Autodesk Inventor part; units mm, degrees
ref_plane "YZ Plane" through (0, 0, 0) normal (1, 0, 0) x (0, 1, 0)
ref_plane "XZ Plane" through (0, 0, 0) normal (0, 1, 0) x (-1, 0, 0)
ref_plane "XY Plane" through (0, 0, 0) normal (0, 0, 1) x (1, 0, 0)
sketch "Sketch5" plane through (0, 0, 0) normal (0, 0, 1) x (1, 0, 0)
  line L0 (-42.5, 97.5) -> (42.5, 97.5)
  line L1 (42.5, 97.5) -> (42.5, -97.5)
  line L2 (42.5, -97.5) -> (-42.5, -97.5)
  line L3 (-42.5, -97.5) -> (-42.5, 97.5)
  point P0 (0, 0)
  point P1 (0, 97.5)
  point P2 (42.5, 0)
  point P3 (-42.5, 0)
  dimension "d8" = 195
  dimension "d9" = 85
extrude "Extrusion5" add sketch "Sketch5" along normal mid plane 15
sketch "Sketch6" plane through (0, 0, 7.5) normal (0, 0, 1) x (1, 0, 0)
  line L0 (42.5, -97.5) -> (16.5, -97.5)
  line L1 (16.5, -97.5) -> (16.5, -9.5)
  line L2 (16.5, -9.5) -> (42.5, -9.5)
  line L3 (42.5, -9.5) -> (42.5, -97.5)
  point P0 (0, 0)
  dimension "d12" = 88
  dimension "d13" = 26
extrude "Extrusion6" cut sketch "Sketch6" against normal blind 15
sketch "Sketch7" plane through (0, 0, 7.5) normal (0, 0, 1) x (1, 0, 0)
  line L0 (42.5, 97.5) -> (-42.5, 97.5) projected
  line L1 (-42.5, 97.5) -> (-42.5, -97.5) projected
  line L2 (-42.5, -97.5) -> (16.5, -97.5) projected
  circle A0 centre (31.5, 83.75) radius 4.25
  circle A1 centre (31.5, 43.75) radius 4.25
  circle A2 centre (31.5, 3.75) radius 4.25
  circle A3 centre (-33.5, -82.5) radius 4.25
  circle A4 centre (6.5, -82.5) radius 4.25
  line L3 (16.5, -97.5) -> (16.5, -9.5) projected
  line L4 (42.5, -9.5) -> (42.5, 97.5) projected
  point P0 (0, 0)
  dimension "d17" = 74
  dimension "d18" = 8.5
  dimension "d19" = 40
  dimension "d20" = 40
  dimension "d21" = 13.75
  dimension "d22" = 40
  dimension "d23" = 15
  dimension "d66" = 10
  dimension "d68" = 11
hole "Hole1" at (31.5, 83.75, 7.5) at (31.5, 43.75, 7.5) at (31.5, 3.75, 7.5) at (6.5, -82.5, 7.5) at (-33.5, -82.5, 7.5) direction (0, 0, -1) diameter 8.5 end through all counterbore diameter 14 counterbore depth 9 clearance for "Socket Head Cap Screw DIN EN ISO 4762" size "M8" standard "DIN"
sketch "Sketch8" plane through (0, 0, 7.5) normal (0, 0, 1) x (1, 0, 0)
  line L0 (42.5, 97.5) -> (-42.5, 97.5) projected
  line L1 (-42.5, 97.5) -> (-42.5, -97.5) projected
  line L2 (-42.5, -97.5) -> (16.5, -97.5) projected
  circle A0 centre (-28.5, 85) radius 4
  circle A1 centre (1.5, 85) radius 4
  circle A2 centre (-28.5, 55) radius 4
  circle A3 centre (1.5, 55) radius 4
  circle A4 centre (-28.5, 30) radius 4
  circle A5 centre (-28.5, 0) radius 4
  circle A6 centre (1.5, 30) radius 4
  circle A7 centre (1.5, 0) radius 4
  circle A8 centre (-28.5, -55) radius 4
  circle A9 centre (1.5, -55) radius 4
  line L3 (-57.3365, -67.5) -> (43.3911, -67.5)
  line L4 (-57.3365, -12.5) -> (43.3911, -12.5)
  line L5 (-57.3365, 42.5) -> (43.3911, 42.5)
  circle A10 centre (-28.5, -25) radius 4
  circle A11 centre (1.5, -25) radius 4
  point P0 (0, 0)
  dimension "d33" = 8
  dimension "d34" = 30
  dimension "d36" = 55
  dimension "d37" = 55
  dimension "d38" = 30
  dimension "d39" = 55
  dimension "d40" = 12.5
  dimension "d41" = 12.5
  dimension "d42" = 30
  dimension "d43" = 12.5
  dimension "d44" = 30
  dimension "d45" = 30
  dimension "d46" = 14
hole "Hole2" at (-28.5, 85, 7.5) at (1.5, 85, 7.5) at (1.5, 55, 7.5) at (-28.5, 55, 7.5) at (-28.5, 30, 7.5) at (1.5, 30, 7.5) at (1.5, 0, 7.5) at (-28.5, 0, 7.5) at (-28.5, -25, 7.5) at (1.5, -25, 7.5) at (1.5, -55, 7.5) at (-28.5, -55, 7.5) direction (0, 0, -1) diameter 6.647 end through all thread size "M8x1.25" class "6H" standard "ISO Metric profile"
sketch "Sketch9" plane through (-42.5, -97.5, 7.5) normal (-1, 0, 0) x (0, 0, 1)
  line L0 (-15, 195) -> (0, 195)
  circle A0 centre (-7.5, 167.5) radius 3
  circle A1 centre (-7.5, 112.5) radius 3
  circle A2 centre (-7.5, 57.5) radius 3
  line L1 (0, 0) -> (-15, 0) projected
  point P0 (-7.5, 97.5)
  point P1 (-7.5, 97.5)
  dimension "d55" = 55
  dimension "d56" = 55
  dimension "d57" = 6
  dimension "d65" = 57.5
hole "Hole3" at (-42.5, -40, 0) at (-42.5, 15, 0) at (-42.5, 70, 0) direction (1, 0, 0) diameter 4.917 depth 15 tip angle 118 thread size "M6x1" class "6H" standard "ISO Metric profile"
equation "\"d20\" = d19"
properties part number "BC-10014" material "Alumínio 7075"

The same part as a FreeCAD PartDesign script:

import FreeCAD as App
import Part
import Sketcher
Q = App.Units.Quantity

doc = App.newDocument("Part")
body = doc.addObject("PartDesign::Body", "Body")

# Sketch on XY plane
sketch1 = body.newObject("Sketcher::SketchObject", "Sketch")
sketch1.AttachmentSupport = (doc.getObject("XY_Plane"), [""])
sketch1.MapMode = "FlatFace"
sketch1.addGeometry([
    Part.LineSegment(App.Vector(42, 98, 0), App.Vector(-42, 98, 0)),
    Part.LineSegment(App.Vector(-42, 98, 0), App.Vector(-42, -98, 0)),
    Part.LineSegment(App.Vector(-42, -98, 0), App.Vector(42, -98, 0)),
    Part.LineSegment(App.Vector(42, -98, 0), App.Vector(42, 98, 0)),
], False)
sketch1.addConstraint([
    Sketcher.Constraint("Coincident", 0, 2, 1, 1),
    Sketcher.Constraint("Coincident", 1, 2, 2, 1),
    Sketcher.Constraint("Coincident", 2, 2, 3, 1),
    Sketcher.Constraint("Coincident", 3, 2, 0, 1),
    Sketcher.Constraint("Horizontal", 0),
    Sketcher.Constraint("Vertical", 1),
    Sketcher.Constraint("Horizontal", 2),
    Sketcher.Constraint("Vertical", 3),
    Sketcher.Constraint("Symmetric", 0, 2, 2, 2, -1, 1),
    Sketcher.Constraint("DistanceX", 0, 2, 0, 1, Q("85 mm")),
    Sketcher.Constraint("DistanceY", 1, 2, 1, 1, Q("195 mm")),
])
pad1 = body.newObject("PartDesign::Pad", "Pad")
pad1.Profile = sketch1
pad1.Length = 15
pad1.Midplane = True

# Sketch on XY plane
sketch2 = body.newObject("Sketcher::SketchObject", "Sketch001")
sketch2.AttachmentSupport = (doc.getObject("XY_Plane"), [""])
sketch2.MapMode = "FlatFace"
sketch2.AttachmentOffset = App.Placement(App.Vector(0, 0, 7.5), App.Rotation())
sketch2.addGeometry([
    Part.LineSegment(App.Vector(16, -98, 0), App.Vector(42, -98, 0)),
    Part.LineSegment(App.Vector(42, -98, 0), App.Vector(42, -10, 0)),
    Part.LineSegment(App.Vector(42, -10, 0), App.Vector(16, -10, 0)),
    Part.LineSegment(App.Vector(16, -10, 0), App.Vector(16, -98, 0)),
], False)
sketch2.addConstraint([
    Sketcher.Constraint("Coincident", 0, 2, 1, 1),
    Sketcher.Constraint("Coincident", 1, 2, 2, 1),
    Sketcher.Constraint("Coincident", 2, 2, 3, 1),
    Sketcher.Constraint("Coincident", 3, 2, 0, 1),
    Sketcher.Constraint("Horizontal", 0),
    Sketcher.Constraint("Vertical", 1),
    Sketcher.Constraint("Horizontal", 2),
    Sketcher.Constraint("Vertical", 3),
    Sketcher.Constraint("DistanceX", 0, 1, 0, 2, Q("26 mm")),
    Sketcher.Constraint("DistanceY", 1, 1, 1, 2, Q("88 mm")),
    Sketcher.Constraint("DistanceX", -1, 1, 0, 2, Q("42.5 mm")),
    Sketcher.Constraint("DistanceY", 0, 2, -1, 1, Q("97.5 mm")),
])
pocket1 = body.newObject("PartDesign::Pocket", "Pocket")
pocket1.Profile = sketch2
pocket1.Length = 15

# Sketch on XY plane
sketch3 = body.newObject("Sketcher::SketchObject", "Sketch002")
sketch3.AttachmentSupport = (doc.getObject("XY_Plane"), [""])
sketch3.MapMode = "FlatFace"
sketch3.AttachmentOffset = App.Placement(App.Vector(0, 0, 7.5), App.Rotation())
sketch3.addGeometry([
    Part.Circle(App.Vector(31.5, 83.8, 0), App.Vector(0, 0, 1), 4.2),  # 0
    Part.Circle(App.Vector(31.5, 43.8, 0), App.Vector(0, 0, 1), 4.2),  # 1
    Part.Circle(App.Vector(31.5, 3.8, 0), App.Vector(0, 0, 1), 4.2),  # 2
    Part.Circle(App.Vector(6.5, -82.5, 0), App.Vector(0, 0, 1), 4.2),  # 3
    Part.Circle(App.Vector(-33.5, -82.5, 0), App.Vector(0, 0, 1), 4.2),  # 4
], False)
sketch3.addConstraint([
    Sketcher.Constraint("Equal", 0, 1),
    Sketcher.Constraint("Equal", 1, 2),
    Sketcher.Constraint("Equal", 2, 3),
    Sketcher.Constraint("Equal", 3, 4),
    Sketcher.Constraint("Horizontal", 3, 3, 4, 3),
    Sketcher.Constraint("Vertical", 0, 3, 1, 3),
    Sketcher.Constraint("Vertical", 1, 3, 2, 3),
    Sketcher.Constraint("Diameter", 0, Q("8.5 mm")),
    Sketcher.Constraint("DistanceY", 1, 3, 0, 3, Q("40 mm")),
    Sketcher.Constraint("DistanceY", 2, 3, 1, 3, Q("40 mm")),
    Sketcher.Constraint("DistanceX", 3, 3, 2, 3, Q("25 mm")),
    Sketcher.Constraint("DistanceX", 4, 3, 3, 3, Q("40 mm")),
    Sketcher.Constraint("DistanceX", -1, 1, 0, 3, Q("31.5 mm")),
    Sketcher.Constraint("DistanceY", 3, 3, -1, 1, Q("82.5 mm")),
    Sketcher.Constraint("DistanceY", -1, 1, 0, 3, Q("83.75 mm")),
])
doc.recompute()
hole = body.newObject("PartDesign::Hole", "Hole")
hole.Profile = sketch3
hole.ThreadType = "None"
hole.Diameter = 8.5
hole.DepthType = "ThroughAll"
hole.HoleCutType = "Counterbore"
hole.HoleCutDiameter = 14
hole.HoleCutDepth = 9

# Sketch on XY plane
sketch4 = body.newObject("Sketcher::SketchObject", "Sketch003")
sketch4.AttachmentSupport = (doc.getObject("XY_Plane"), [""])
sketch4.MapMode = "FlatFace"
sketch4.AttachmentOffset = App.Placement(App.Vector(0, 0, 7.5), App.Rotation())
sketch4.addGeometry([
    Part.Circle(App.Vector(-28.5, 85, 0), App.Vector(0, 0, 1), 3.3),  # 0
    Part.Circle(App.Vector(1.5, 85, 0), App.Vector(0, 0, 1), 3.3),  # 1
    Part.Circle(App.Vector(1.5, 55, 0), App.Vector(0, 0, 1), 3.3),  # 2
    Part.Circle(App.Vector(-28.5, 55, 0), App.Vector(0, 0, 1), 3.3),  # 3
    Part.Circle(App.Vector(-28.5, 30, 0), App.Vector(0, 0, 1), 3.3),  # 4
    Part.Circle(App.Vector(1.5, 30, 0), App.Vector(0, 0, 1), 3.3),  # 5
    Part.Circle(App.Vector(1.5, 0, 0), App.Vector(0, 0, 1), 3.3),  # 6
    Part.Circle(App.Vector(-28.5, 0, 0), App.Vector(0, 0, 1), 3.3),  # 7
    Part.Circle(App.Vector(-28.5, -25, 0), App.Vector(0, 0, 1), 3.3),  # 8
    Part.Circle(App.Vector(1.5, -25, 0), App.Vector(0, 0, 1), 3.3),  # 9
    Part.Circle(App.Vector(1.5, -55, 0), App.Vector(0, 0, 1), 3.3),  # 10
    Part.Circle(App.Vector(-28.5, -55, 0), App.Vector(0, 0, 1), 3.3),  # 11
], False)
sketch4.addConstraint([
    Sketcher.Constraint("Equal", 0, 1),
    Sketcher.Constraint("Equal", 1, 2),
    Sketcher.Constraint("Equal", 2, 3),
    Sketcher.Constraint("Equal", 3, 4),
    Sketcher.Constraint("Equal", 4, 5),
    Sketcher.Constraint("Equal", 5, 6),
    Sketcher.Constraint("Equal", 6, 7),
    Sketcher.Constraint("Equal", 7, 8),
    Sketcher.Constraint("Equal", 8, 9),
    Sketcher.Constraint("Equal", 9, 10),
    Sketcher.Constraint("Equal", 10, 11),
    Sketcher.Constraint("Symmetric", 2, 3, 10, 3, -1),
    Sketcher.Constraint("Symmetric", 3, 3, 11, 3, -1),
    Sketcher.Constraint("PointOnObject", 6, 3, -1),
    Sketcher.Constraint("PointOnObject", 7, 3, -1),
    Sketcher.Constraint("Horizontal", 0, 3, 1, 3),
    Sketcher.Constraint("Horizontal", 2, 3, 3, 3),
    Sketcher.Constraint("Horizontal", 4, 3, 5, 3),
    Sketcher.Constraint("Horizontal", 8, 3, 9, 3),
    Sketcher.Constraint("Vertical", 1, 3, 2, 3),
    Sketcher.Constraint("Vertical", 0, 3, 3, 3),
    Sketcher.Constraint("Vertical", 3, 3, 4, 3),
    Sketcher.Constraint("Vertical", 2, 3, 5, 3),
    Sketcher.Constraint("Vertical", 5, 3, 6, 3),
    Sketcher.Constraint("Vertical", 4, 3, 7, 3),
    Sketcher.Constraint("Vertical", 7, 3, 8, 3),
    Sketcher.Constraint("Vertical", 6, 3, 9, 3),
    Sketcher.Constraint("Diameter", 0, Q("6.647 mm")),
    Sketcher.Constraint("DistanceY", -1, 1, 0, 3, Q("85 mm")),
    Sketcher.Constraint("DistanceY", -1, 1, 2, 3, Q("55 mm")),
    Sketcher.Constraint("DistanceY", -1, 1, 4, 3, Q("30 mm")),
    Sketcher.Constraint("DistanceY", 8, 3, -1, 1, Q("25 mm")),
    Sketcher.Constraint("DistanceX", 0, 3, 1, 3, Q("30 mm")),
    Sketcher.Constraint("DistanceX", 0, 3, -1, 1, Q("28.5 mm")),
])
doc.recompute()
hole2 = body.newObject("PartDesign::Hole", "Hole001")
hole2.Profile = sketch4
hole2.ThreadType = "None"
hole2.Diameter = 6.647
hole2.DepthType = "ThroughAll"

# Sketch on YZ plane
sketch5 = body.newObject("Sketcher::SketchObject", "Sketch004")
sketch5.AttachmentSupport = (doc.getObject("YZ_Plane"), [""])
sketch5.MapMode = "FlatFace"
sketch5.AttachmentOffset = App.Placement(App.Vector(0, 0, -42.5), App.Rotation())
sketch5.addGeometry([
    Part.Circle(App.Vector(-40, 0, 0), App.Vector(0, 0, 1), 2.5),
    Part.Circle(App.Vector(15, 0, 0), App.Vector(0, 0, 1), 2.5),
    Part.Circle(App.Vector(70, 0, 0), App.Vector(0, 0, 1), 2.5),
], False)
sketch5.addConstraint([
    Sketcher.Constraint("Equal", 0, 1),
    Sketcher.Constraint("Equal", 1, 2),
    Sketcher.Constraint("PointOnObject", 0, 3, -1),
    Sketcher.Constraint("PointOnObject", 1, 3, -1),
    Sketcher.Constraint("PointOnObject", 2, 3, -1),
    Sketcher.Constraint("Diameter", 0, Q("4.917 mm")),
    Sketcher.Constraint("DistanceX", 0, 3, -1, 1, Q("40 mm")),
    Sketcher.Constraint("DistanceX", -1, 1, 1, 3, Q("15 mm")),
    Sketcher.Constraint("DistanceX", -1, 1, 2, 3, Q("70 mm")),
])
doc.recompute()
hole3 = body.newObject("PartDesign::Hole", "Hole002")
hole3.Profile = sketch5
hole3.ThreadType = "None"
hole3.Diameter = 4.917
hole3.DepthType = "Dimension"
hole3.Depth = 15
hole3.DrillPoint = "Angled"
hole3.DrillPointAngle = 118
hole3.Reversed = True

doc.recompute()
